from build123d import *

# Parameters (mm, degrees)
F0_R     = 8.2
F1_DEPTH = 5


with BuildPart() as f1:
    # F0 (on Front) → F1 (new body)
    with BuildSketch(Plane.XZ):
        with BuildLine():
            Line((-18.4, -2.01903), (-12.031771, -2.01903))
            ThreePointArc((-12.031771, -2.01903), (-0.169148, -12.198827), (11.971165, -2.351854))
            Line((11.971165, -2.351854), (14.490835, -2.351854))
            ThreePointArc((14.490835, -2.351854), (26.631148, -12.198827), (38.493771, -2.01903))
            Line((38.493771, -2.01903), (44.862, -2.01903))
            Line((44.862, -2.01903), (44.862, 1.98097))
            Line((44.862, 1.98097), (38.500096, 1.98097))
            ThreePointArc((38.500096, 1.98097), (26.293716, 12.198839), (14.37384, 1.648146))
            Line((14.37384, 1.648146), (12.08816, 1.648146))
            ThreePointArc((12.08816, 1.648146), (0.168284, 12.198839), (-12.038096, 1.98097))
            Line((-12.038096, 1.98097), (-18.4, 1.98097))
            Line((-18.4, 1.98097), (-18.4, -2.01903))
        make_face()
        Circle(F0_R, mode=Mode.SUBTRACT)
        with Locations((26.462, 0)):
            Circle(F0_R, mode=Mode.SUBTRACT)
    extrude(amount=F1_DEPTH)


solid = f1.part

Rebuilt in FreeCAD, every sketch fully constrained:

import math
import FreeCAD as App
import Part
import Sketcher
from FreeCAD import Vector
Q = App.Units.Quantity

doc = App.newDocument("Part")
params = doc.addObject("Spreadsheet::Sheet", "Params")
for row, (alias, value) in enumerate([
    ("sketch1_diameter", "16.4 mm"),
    ("sketch1_radius", "12.2 mm"),
    ("sketch1_height", "4 mm"),
    ("pad1_length", "5 mm"),
], start=1):
    params.set(f"A{row}", alias)
    params.set(f"B{row}", "=" + value)
    params.setAlias(f"B{row}", alias)

body = doc.addObject("PartDesign::Body", "Body")

# Sketch on XZ plane
sketch1 = body.newObject("Sketcher::SketchObject", "Sketch")
sketch1.AttachmentSupport = (doc.getObject("XZ_Plane"), [""])
sketch1.MapMode = "FlatFace"
sketch1.addGeometry([
    Part.LineSegment(Vector(-18.4, -2.01903, 0), Vector(-12.031771, -2.01903, 0)),  # 0
    Part.ArcOfCircle(Part.Circle(Vector(0, 0.000001, 0), Vector(0, 0, 1), 12.2), math.radians(-170.474049), math.radians(-11.114772)),  # 1
    Part.LineSegment(Vector(11.971165, -2.351854, 0), Vector(14.490835, -2.351854, 0)),  # 2
    Part.ArcOfCircle(Part.Circle(Vector(26.462, 0.000001, 0), Vector(0, 0, 1), 12.2), math.radians(-168.885228), math.radians(-9.525951)),  # 3
    Part.LineSegment(Vector(38.493771, -2.01903, 0), Vector(44.862, -2.01903, 0)),  # 4
    Part.LineSegment(Vector(44.862, -2.01903, 0), Vector(44.862, 1.98097, 0)),  # 5
    Part.LineSegment(Vector(44.862, 1.98097, 0), Vector(38.500096, 1.98097, 0)),  # 6
    Part.ArcOfCircle(Part.Circle(Vector(26.462, 0, 0), Vector(0, 0, 1), 12.2), math.radians(9.344754), math.radians(172.235947)),  # 7
    Part.LineSegment(Vector(14.37384, 1.648146, 0), Vector(12.08816, 1.648146, 0)),  # 8
    Part.ArcOfCircle(Part.Circle(Vector(0, 0, 0), Vector(0, 0, 1), 12.2), math.radians(7.764053), math.radians(170.655246)),  # 9
    Part.LineSegment(Vector(-12.038096, 1.98097, 0), Vector(-18.4, 1.98097, 0)),  # 10
    Part.LineSegment(Vector(-18.4, 1.98097, 0), Vector(-18.4, -2.01903, 0)),  # 11
    Part.Circle(Vector(0, 0, 0), Vector(0, 0, 1), 8.2),  # 12
    Part.Circle(Vector(26.462, 0, 0), Vector(0, 0, 1), 8.2),  # 13
], False)
sketch1.addConstraint([
    Sketcher.Constraint("Coincident", 0, 2, 1, 1),
    Sketcher.Constraint("Coincident", 1, 2, 2, 1),
    Sketcher.Constraint("Coincident", 2, 2, 3, 1),
    Sketcher.Constraint("Coincident", 3, 2, 4, 1),
    Sketcher.Constraint("Coincident", 4, 2, 5, 1),
    Sketcher.Constraint("Coincident", 5, 2, 6, 1),
    Sketcher.Constraint("Coincident", 6, 2, 7, 1),
    Sketcher.Constraint("Coincident", 7, 2, 8, 1),
    Sketcher.Constraint("Coincident", 8, 2, 9, 1),
    Sketcher.Constraint("Coincident", 9, 2, 10, 1),
    Sketcher.Constraint("Coincident", 10, 2, 11, 1),
    Sketcher.Constraint("Coincident", 11, 2, 0, 1),
    Sketcher.Constraint("Horizontal", 0),
    Sketcher.Constraint("Horizontal", 2),
    Sketcher.Constraint("Horizontal", 4),
    Sketcher.Constraint("Vertical", 5),
    Sketcher.Constraint("Horizontal", 6),
    Sketcher.Constraint("Horizontal", 8),
    Sketcher.Constraint("Horizontal", 10),
    Sketcher.Constraint("Vertical", 11),
    Sketcher.Constraint("Coincident", 1, 3, -1, 1),
    Sketcher.Constraint("Coincident", 9, 3, -1, 1),
    Sketcher.Constraint("Coincident", 12, 3, -1, 1),
    Sketcher.Constraint("Coincident", 7, 3, 3, 3),
    Sketcher.Constraint("Coincident", 13, 3, 3, 3),
    Sketcher.Constraint("Equal", 1, 3),
    Sketcher.Constraint("Equal", 3, 7),
    Sketcher.Constraint("Equal", 7, 9),
    Sketcher.Constraint("Equal", 12, 13),
    Sketcher.Constraint("PointOnObject", 3, 3, -1),
    Sketcher.Constraint("Horizontal", 0, 2, 3, 2),
    Sketcher.Constraint("Horizontal", 6, 2, 9, 2),
    Sketcher.Constraint("Equal", 0, 4),
    Sketcher.Constraint("Diameter", 12, Q("16.4 mm")),
    Sketcher.Constraint("Radius", 1, Q("12.2 mm")),
    Sketcher.Constraint("DistanceY", 5, 1, 5, 2, Q("4 mm")),
    Sketcher.Constraint("DistanceY", 2, 2, 7, 2, Q("4 mm")),
    Sketcher.Constraint("DistanceX", 10, 2, -1, 1, Q("18.4 mm")),
    Sketcher.Constraint("DistanceX", -1, 1, 3, 3, Q("26.462 mm")),
    Sketcher.Constraint("DistanceX", 0, 1, 0, 2, Q("6.368229 mm")),
    Sketcher.Constraint("DistanceX", 2, 1, 2, 2, Q("2.51967 mm")),
])
sketch1.setExpression("Constraints[33]", "Params.sketch1_diameter")
sketch1.setExpression("Constraints[34]", "Params.sketch1_radius")
sketch1.setExpression("Constraints[35]", "Params.sketch1_height")
pad1 = body.newObject("PartDesign::Pad", "Pad")
pad1.Profile = sketch1
pad1.setExpression("Length", "Params.pad1_length")

doc.recompute()
